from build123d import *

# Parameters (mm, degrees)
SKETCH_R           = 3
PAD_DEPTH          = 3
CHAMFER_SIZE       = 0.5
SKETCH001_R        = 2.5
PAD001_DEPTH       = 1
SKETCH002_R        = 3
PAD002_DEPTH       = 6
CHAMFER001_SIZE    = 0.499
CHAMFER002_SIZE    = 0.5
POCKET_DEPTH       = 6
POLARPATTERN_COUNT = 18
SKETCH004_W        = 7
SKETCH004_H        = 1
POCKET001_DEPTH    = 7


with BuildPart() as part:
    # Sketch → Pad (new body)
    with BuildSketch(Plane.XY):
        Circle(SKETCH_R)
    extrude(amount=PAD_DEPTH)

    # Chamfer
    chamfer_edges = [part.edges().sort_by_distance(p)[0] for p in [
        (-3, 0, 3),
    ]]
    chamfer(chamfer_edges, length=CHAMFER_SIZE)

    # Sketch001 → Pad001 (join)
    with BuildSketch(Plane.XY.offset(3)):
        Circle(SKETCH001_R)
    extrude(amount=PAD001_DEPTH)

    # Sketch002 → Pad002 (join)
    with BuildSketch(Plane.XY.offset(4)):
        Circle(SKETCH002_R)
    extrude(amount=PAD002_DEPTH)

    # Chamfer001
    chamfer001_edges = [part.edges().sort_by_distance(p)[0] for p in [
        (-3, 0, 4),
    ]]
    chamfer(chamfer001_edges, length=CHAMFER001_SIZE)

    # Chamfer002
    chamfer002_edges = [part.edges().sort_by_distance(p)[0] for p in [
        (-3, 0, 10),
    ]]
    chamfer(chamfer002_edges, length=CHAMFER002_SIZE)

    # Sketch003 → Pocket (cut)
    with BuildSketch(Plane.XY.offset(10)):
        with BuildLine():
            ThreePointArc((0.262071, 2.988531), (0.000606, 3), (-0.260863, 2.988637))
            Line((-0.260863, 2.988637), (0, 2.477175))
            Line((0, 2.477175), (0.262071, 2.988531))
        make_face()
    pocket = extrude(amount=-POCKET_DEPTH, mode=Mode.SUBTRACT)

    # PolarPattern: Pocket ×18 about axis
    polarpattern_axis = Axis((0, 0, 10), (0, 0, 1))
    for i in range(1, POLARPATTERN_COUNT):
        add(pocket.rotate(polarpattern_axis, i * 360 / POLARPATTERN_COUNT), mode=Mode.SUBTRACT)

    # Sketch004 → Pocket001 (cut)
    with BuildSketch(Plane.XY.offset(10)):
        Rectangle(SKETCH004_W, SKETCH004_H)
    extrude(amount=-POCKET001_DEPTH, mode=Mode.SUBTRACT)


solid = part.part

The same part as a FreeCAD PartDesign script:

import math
import FreeCAD as App
import Part
import Sketcher
from FreeCAD import Vector
Q = App.Units.Quantity


def edges_at(feature, points):
    """Names of the edges that pass closest to the given points."""
    edges = feature.Shape.Edges
    near = lambda p: min(range(len(edges)), key=lambda i: edges[i].distToShape(Part.Vertex(*p))[0])
    return sorted({f"Edge{near(p) + 1}" for p in points})


def add_polygon(sketch, points):
    """Adds a closed chain of lines whose ends are joined by coincident constraints."""
    first, n = sketch.GeometryCount, len(points)
    for a, b in zip(points, points[1:] + points[:1]):
        sketch.addGeometry(Part.LineSegment(App.Vector(*a, 0), App.Vector(*b, 0)), False)
    for i in range(n):
        sketch.addConstraint(Sketcher.Constraint("Coincident", first + i, 2, first + (i + 1) % n, 1))

doc = App.newDocument("Part")
params = doc.addObject("Spreadsheet::Sheet", "Params")
for row, (alias, value) in enumerate([
    ("sketch1_diameter", "6 mm"),
    ("pad1_length", "3 mm"),
    ("chamfer_size", "0.5 mm"),
    ("sketch2_diameter", "5 mm"),
    ("pad2_length", "1 mm"),
    ("sketch3_diameter", "6 mm"),
    ("pad3_length", "6 mm"),
    ("chamfer2_size", "0.499 mm"),
    ("chamfer3_size", "0.5 mm"),
    ("pocket1_length", "6 mm"),
    ("sketch5_width", "7 mm"),
    ("sketch5_height", "1 mm"),
    ("pocket2_length", "7 mm"),
], start=1):
    params.set(f"A{row}", alias)
    params.set(f"B{row}", "=" + value)
    params.setAlias(f"B{row}", alias)

body = doc.addObject("PartDesign::Body", "Body")

# Sketch on XY plane
sketch1 = body.newObject("Sketcher::SketchObject", "Sketch")
sketch1.AttachmentSupport = (doc.getObject("XY_Plane"), [""])
sketch1.MapMode = "FlatFace"
sketch1.addGeometry(Part.Circle(Vector(0, 0, 0), Vector(0, 0, 1), 3), False)
sketch1.addConstraint(Sketcher.Constraint("Coincident", 0, 3, -1, 1))
sketch1.addConstraint(Sketcher.Constraint("Diameter", 0, Q("6 mm")))
sketch1.setExpression("Constraints[1]", "Params.sketch1_diameter")
pad1 = body.newObject("PartDesign::Pad", "Pad")
pad1.Profile = sketch1
pad1.setExpression("Length", "Params.pad1_length")
doc.recompute()

chamfer = body.newObject("PartDesign::Chamfer", "Chamfer")
chamfer.Base = (pad1, edges_at(pad1, [(-3, 0, 3)]))
chamfer.setExpression("Size", "Params.chamfer_size")

# Sketch on XY plane
sketch2 = body.newObject("Sketcher::SketchObject", "Sketch001")
sketch2.AttachmentSupport = (doc.getObject("XY_Plane"), [""])
sketch2.MapMode = "FlatFace"
sketch2.AttachmentOffset = App.Placement(Vector(0, 0, 3), App.Rotation())
sketch2.addGeometry(Part.Circle(Vector(0, 0, 0), Vector(0, 0, 1), 2.5), False)
sketch2.addConstraint(Sketcher.Constraint("Coincident", 0, 3, -1, 1))
sketch2.addConstraint(Sketcher.Constraint("Diameter", 0, Q("5 mm")))
sketch2.setExpression("Constraints[1]", "Params.sketch2_diameter")
pad2 = body.newObject("PartDesign::Pad", "Pad001")
pad2.Profile = sketch2
pad2.setExpression("Length", "Params.pad2_length")

# Sketch on XY plane
sketch3 = body.newObject("Sketcher::SketchObject", "Sketch002")
sketch3.AttachmentSupport = (doc.getObject("XY_Plane"), [""])
sketch3.MapMode = "FlatFace"
sketch3.AttachmentOffset = App.Placement(Vector(0, 0, 4), App.Rotation())
sketch3.addGeometry(Part.Circle(Vector(0, 0, 0), Vector(0, 0, 1), 3), False)
sketch3.addConstraint(Sketcher.Constraint("Coincident", 0, 3, -1, 1))
sketch3.addConstraint(Sketcher.Constraint("Diameter", 0, Q("6 mm")))
sketch3.setExpression("Constraints[1]", "Params.sketch3_diameter")
pad3 = body.newObject("PartDesign::Pad", "Pad002")
pad3.Profile = sketch3
pad3.setExpression("Length", "Params.pad3_length")
doc.recompute()

chamfer2 = body.newObject("PartDesign::Chamfer", "Chamfer001")
chamfer2.Base = (pad3, edges_at(pad3, [(-3, 0, 4)]))
chamfer2.setExpression("Size", "Params.chamfer2_size")
doc.recompute()

chamfer3 = body.newObject("PartDesign::Chamfer", "Chamfer002")
chamfer3.Base = (chamfer2, edges_at(chamfer2, [(-3, 0, 10)]))
chamfer3.setExpression("Size", "Params.chamfer3_size")

# Sketch on XY plane
sketch4 = body.newObject("Sketcher::SketchObject", "Sketch003")
sketch4.AttachmentSupport = (doc.getObject("XY_Plane"), [""])
sketch4.MapMode = "FlatFace"
sketch4.AttachmentOffset = App.Placement(Vector(0, 0, 10), App.Rotation())
sketch4.addGeometry(Part.ArcOfCircle(Part.Circle(Vector(0, 0, 0), Vector(0, 0, 1), 3), math.radians(84.99), math.radians(94.99)), False)
sketch4.addGeometry(Part.LineSegment(Vector(-0.3, 3, 0), Vector(0, 2.5, 0)), False)
sketch4.addGeometry(Part.LineSegment(Vector(0, 2.5, 0), Vector(0.3, 3, 0)), False)
sketch4.addConstraint(Sketcher.Constraint("Coincident", 0, 2, 1, 1))
sketch4.addConstraint(Sketcher.Constraint("Coincident", 1, 2, 2, 1))
sketch4.addConstraint(Sketcher.Constraint("Coincident", 2, 2, 0, 1))
sketch4.addConstraint(Sketcher.Constraint("PointOnObject", 0, 3, -2))
sketch4.addConstraint(Sketcher.Constraint("PointOnObject", 1, 2, -2))
sketch4.addConstraint(Sketcher.Constraint("Radius", 0, Q("2.99997 mm")))
sketch4.addConstraint(Sketcher.Constraint("Distance", 2, Q("0.574601 mm")))
sketch4.addConstraint(Sketcher.Constraint("DistanceY", 0, 3, 2, 2, Q("2.988501 mm")))
sketch4.addConstraint(Sketcher.Constraint("DistanceY", -1, 1, 2, 2, Q("2.988531 mm")))
sketch4.addConstraint(Sketcher.Constraint("DistanceX", 0, 2, 0, 3, Q("0.260861 mm")))
pocket1 = body.newObject("PartDesign::Pocket", "Pocket")
pocket1.Profile = sketch4
pocket1.setExpression("Length", "Params.pocket1_length")
doc.recompute()

polarpattern = body.newObject("PartDesign::PolarPattern", "PolarPattern")
polarpattern.Originals = [pocket1]
polarpattern.Axis = (doc.getObject("Z_Axis"), [""])
polarpattern.Angle = 360
polarpattern.Occurrences = 18
body.Tip = polarpattern

# Sketch on XY plane
sketch5 = body.newObject("Sketcher::SketchObject", "Sketch004")
sketch5.AttachmentSupport = (doc.getObject("XY_Plane"), [""])
sketch5.MapMode = "FlatFace"
sketch5.AttachmentOffset = App.Placement(Vector(0, 0, 10), App.Rotation())
add_polygon(sketch5, [(-3.5, 0.5), (-3.5, -0.5), (3.5, -0.5), (3.5, 0.5)])  # lines 0-3
sketch5.addConstraint(Sketcher.Constraint("Vertical", 0))
sketch5.addConstraint(Sketcher.Constraint("Horizontal", 1))
sketch5.addConstraint(Sketcher.Constraint("Vertical", 2))
sketch5.addConstraint(Sketcher.Constraint("Horizontal", 3))
sketch5.addConstraint(Sketcher.Constraint("Symmetric", 0, 2, 2, 2, -1, 1))
sketch5.addConstraint(Sketcher.Constraint("DistanceX", 1, 1, 1, 2, Q("7 mm")))
sketch5.addConstraint(Sketcher.Constraint("DistanceY", 0, 2, 0, 1, Q("1 mm")))
sketch5.setExpression("Constraints[9]", "Params.sketch5_width")
sketch5.setExpression("Constraints[10]", "Params.sketch5_height")
pocket2 = body.newObject("PartDesign::Pocket", "Pocket001")
pocket2.Profile = sketch5
pocket2.setExpression("Length", "Params.pocket2_length")

doc.recompute()
